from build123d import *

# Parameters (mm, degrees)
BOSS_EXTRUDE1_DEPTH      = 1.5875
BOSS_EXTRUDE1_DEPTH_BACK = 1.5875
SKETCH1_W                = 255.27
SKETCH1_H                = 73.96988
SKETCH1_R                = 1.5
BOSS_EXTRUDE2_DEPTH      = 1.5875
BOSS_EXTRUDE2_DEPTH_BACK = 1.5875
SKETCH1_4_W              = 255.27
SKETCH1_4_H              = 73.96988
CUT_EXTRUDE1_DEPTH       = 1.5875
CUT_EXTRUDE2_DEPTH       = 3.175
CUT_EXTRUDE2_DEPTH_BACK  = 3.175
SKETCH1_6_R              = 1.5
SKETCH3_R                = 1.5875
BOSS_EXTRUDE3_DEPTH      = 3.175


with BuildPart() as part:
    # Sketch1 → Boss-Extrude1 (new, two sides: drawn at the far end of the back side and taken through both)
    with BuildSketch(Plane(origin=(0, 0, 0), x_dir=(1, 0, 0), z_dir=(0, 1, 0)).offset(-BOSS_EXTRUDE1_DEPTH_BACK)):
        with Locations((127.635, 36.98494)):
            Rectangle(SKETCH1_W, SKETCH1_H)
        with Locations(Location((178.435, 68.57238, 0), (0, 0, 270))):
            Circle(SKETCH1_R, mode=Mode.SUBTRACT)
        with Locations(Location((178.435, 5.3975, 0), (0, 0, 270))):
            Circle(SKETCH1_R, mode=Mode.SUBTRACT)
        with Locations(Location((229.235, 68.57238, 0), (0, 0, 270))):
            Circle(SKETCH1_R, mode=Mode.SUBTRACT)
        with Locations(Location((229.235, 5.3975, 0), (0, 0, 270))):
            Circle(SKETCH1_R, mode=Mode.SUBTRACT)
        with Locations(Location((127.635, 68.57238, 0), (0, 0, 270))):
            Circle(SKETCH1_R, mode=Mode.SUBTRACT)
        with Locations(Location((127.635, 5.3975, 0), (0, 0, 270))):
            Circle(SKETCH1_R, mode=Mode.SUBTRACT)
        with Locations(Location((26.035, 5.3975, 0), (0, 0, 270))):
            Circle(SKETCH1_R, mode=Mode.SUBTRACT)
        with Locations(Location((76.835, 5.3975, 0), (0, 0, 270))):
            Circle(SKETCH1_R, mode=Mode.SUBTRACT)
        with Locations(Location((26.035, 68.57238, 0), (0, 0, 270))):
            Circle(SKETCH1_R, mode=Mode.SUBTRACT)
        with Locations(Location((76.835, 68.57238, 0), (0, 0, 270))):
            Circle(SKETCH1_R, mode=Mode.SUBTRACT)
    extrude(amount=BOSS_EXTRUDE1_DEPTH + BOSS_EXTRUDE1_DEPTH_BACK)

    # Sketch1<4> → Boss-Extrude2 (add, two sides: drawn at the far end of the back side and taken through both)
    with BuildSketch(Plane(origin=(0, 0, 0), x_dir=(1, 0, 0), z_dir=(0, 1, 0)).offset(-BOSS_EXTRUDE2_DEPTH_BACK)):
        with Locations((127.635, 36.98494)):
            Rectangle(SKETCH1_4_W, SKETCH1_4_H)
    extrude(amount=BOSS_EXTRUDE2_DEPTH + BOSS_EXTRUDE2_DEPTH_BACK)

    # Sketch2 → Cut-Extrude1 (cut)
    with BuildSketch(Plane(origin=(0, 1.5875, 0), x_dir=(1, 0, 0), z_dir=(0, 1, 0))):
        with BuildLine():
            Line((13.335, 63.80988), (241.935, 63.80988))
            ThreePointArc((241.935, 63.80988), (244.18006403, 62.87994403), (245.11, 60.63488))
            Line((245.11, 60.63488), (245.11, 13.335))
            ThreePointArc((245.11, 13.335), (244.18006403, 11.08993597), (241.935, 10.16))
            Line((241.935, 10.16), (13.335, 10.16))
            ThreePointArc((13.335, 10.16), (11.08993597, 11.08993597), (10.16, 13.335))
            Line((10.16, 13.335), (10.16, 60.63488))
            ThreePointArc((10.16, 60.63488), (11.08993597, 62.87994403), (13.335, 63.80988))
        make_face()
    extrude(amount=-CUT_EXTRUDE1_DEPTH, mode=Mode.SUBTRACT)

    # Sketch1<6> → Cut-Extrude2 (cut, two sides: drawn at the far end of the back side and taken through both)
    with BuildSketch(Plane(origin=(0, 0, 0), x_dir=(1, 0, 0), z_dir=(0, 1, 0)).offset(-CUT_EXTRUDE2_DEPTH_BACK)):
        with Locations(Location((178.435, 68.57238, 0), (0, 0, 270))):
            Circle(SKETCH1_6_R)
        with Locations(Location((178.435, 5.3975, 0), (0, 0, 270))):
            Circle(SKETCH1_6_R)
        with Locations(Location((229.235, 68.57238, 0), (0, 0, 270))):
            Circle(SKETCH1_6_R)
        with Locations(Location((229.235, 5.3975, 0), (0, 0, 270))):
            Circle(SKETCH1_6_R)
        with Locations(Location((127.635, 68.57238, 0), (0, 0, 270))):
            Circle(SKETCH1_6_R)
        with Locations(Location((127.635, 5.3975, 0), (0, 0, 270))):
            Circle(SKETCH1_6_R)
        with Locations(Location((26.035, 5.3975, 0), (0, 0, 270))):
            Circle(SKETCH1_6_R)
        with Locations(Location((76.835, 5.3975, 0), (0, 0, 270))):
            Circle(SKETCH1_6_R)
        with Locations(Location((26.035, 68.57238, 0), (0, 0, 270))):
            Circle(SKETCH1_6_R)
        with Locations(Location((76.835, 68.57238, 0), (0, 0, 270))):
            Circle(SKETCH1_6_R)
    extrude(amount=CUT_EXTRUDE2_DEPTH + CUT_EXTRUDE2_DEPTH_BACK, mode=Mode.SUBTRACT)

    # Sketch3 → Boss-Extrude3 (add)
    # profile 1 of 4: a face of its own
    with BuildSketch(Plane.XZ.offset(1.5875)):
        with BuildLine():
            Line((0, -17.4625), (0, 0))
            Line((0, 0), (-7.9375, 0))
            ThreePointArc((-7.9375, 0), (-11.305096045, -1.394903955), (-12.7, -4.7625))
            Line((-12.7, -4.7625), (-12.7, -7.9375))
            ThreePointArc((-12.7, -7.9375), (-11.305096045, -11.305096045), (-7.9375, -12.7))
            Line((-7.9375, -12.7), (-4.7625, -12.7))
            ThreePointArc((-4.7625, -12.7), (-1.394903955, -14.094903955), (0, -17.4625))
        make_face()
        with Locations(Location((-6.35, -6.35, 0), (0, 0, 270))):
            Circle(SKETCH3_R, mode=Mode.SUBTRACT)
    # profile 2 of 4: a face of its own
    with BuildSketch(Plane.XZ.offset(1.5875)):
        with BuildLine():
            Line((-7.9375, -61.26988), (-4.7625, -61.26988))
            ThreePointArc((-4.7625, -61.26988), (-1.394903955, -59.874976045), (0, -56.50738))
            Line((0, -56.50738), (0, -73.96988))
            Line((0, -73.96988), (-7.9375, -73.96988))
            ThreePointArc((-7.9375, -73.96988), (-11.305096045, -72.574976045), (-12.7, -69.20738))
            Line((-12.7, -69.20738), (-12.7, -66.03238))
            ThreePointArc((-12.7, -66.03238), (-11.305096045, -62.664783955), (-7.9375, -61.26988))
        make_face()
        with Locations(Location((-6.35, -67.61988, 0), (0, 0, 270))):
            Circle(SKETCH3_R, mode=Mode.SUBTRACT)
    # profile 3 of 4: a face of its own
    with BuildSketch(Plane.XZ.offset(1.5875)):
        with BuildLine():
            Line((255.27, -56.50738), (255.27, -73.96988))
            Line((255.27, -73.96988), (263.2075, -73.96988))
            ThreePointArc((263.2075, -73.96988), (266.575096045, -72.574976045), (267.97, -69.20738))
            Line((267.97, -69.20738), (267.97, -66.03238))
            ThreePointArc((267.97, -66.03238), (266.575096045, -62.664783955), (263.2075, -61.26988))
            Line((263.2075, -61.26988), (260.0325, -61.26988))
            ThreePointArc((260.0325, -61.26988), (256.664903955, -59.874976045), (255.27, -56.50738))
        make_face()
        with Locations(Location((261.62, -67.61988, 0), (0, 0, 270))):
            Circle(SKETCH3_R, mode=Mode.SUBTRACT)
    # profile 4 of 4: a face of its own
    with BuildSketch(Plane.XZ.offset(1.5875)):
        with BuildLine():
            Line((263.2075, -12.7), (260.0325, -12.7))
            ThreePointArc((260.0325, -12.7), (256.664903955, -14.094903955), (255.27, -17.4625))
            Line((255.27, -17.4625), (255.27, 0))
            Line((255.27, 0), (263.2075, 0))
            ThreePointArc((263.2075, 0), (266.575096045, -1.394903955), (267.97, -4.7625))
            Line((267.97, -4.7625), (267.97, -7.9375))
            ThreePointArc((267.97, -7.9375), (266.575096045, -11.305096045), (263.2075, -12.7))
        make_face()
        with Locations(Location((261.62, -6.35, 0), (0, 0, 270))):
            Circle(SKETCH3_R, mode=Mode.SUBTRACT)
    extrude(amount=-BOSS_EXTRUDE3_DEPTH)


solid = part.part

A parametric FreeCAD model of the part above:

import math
import FreeCAD as App
import Part
import Sketcher
from FreeCAD import Vector
Q = App.Units.Quantity

doc = App.newDocument("Part")
params = doc.addObject("Spreadsheet::Sheet", "Params")
for row, (alias, value) in enumerate([
    ("sketch1_width", "10.05 in"),
    ("pad1_length", "0.0625 in"),
    ("pad1_length2", "0.0625 in"),
    ("sketch2_width", "10.05 in"),
    ("pad2_length", "0.0625 in"),
    ("pad2_length2", "0.0625 in"),
    ("sketch3_width", "9 in"),
    ("sketch3_radius", "0.125 in"),
    ("pocket1_length", "0.0625 in"),
    ("sketch5_diameter", "0.125 in"),
    ("sketch5_radius", "0.1875 in"),
    ("pad3_length", "0.125 in"),
], start=1):
    params.set(f"A{row}", alias)
    params.set(f"B{row}", "=" + value)
    params.setAlias(f"B{row}", alias)

body = doc.addObject("PartDesign::Body", "Body")

# Sketch on XZ plane
sketch1 = doc.addObject("Sketcher::SketchObject", "Sketch")
body.addObject(sketch1)
sketch1.AttachmentSupport = (doc.XZ_Plane, [""])
sketch1.MapMode = "FlatFace"
sketch1.addGeometry([
    Part.LineSegment(Vector(0, -73.96988, 0), Vector(0, 0, 0)),  # 0
    Part.LineSegment(Vector(0, 0, 0), Vector(255.27, 0, 0)),  # 1
    Part.LineSegment(Vector(255.27, 0, 0), Vector(255.27, -73.96988, 0)),  # 2
    Part.LineSegment(Vector(255.27, -73.96988, 0), Vector(0, -73.96988, 0)),  # 3
    Part.Circle(Vector(26.035, -5.3975, 0), Vector(0, 0, 1), 1.5),  # 4
    Part.Circle(Vector(76.835, -5.3975, 0), Vector(0, 0, 1), 1.5),  # 5
    Part.Circle(Vector(127.635, -5.3975, 0), Vector(0, 0, 1), 1.5),  # 6
    Part.Circle(Vector(178.435, -5.3975, 0), Vector(0, 0, 1), 1.5),  # 7
    Part.Circle(Vector(229.235, -5.3975, 0), Vector(0, 0, 1), 1.5),  # 8
    Part.Circle(Vector(26.035, -68.57238, 0), Vector(0, 0, 1), 1.5),  # 9
    Part.Circle(Vector(76.835, -68.57238, 0), Vector(0, 0, 1), 1.5),  # 10
    Part.Circle(Vector(127.635, -68.57238, 0), Vector(0, 0, 1), 1.5),  # 11
    Part.Circle(Vector(178.435, -68.57238, 0), Vector(0, 0, 1), 1.5),  # 12
    Part.Circle(Vector(229.235, -68.57238, 0), Vector(0, 0, 1), 1.5),  # 13
], False)
sketch1.addConstraint([
    Sketcher.Constraint("Coincident", 0, 2, 1, 1),
    Sketcher.Constraint("Coincident", 1, 2, 2, 1),
    Sketcher.Constraint("Coincident", 2, 2, 3, 1),
    Sketcher.Constraint("Coincident", 3, 2, 0, 1),
    Sketcher.Constraint("Vertical", 0),
    Sketcher.Constraint("Horizontal", 1),
    Sketcher.Constraint("Vertical", 2),
    Sketcher.Constraint("Horizontal", 3),
    Sketcher.Constraint("Coincident", 0, 2, -1, 1),
    Sketcher.Constraint("Equal", 4, 5),
    Sketcher.Constraint("Equal", 5, 6),
    Sketcher.Constraint("Equal", 6, 7),
    Sketcher.Constraint("Equal", 7, 8),
    Sketcher.Constraint("Equal", 8, 9),
    Sketcher.Constraint("Equal", 9, 10),
    Sketcher.Constraint("Equal", 10, 11),
    Sketcher.Constraint("Equal", 11, 12),
    Sketcher.Constraint("Equal", 12, 13),
    Sketcher.Constraint("Horizontal", 4, 3, 5, 3),
    Sketcher.Constraint("Horizontal", 5, 3, 6, 3),
    Sketcher.Constraint("Horizontal", 6, 3, 7, 3),
    Sketcher.Constraint("Horizontal", 7, 3, 8, 3),
    Sketcher.Constraint("Horizontal", 9, 3, 10, 3),
    Sketcher.Constraint("Horizontal", 10, 3, 11, 3),
    Sketcher.Constraint("Horizontal", 11, 3, 12, 3),
    Sketcher.Constraint("Horizontal", 12, 3, 13, 3),
    Sketcher.Constraint("Vertical", 4, 3, 9, 3),
    Sketcher.Constraint("Vertical", 5, 3, 10, 3),
    Sketcher.Constraint("Vertical", 6, 3, 11, 3),
    Sketcher.Constraint("Vertical", 7, 3, 12, 3),
    Sketcher.Constraint("Vertical", 8, 3, 13, 3),
    Sketcher.Constraint("DistanceX", 4, 3, 5, 3, Q("2 in")),
    Sketcher.Constraint("DistanceX", 5, 3, 6, 3, Q("2 in")),
    Sketcher.Constraint("DistanceX", 6, 3, 7, 3, Q("2 in")),
    Sketcher.Constraint("DistanceX", 7, 3, 8, 3, Q("2 in")),
    Sketcher.Constraint("DistanceX", 1, 1, 1, 2, Q("10.05 in")),
    Sketcher.Constraint("Diameter", 4, Q("3 mm")),
    Sketcher.Constraint("DistanceY", 0, 1, 0, 2, Q("2.9122 in")),
    Sketcher.Constraint("DistanceX", -1, 1, 4, 3, Q("1.025 in")),
    Sketcher.Constraint("DistanceY", 4, 3, -1, 1, Q("0.2125 in")),
    Sketcher.Constraint("DistanceY", 9, 3, -1, 1, Q("2.6997 in")),
])
sketch1.setExpression("Constraints[35]", "Params.sketch1_width")
pad1 = doc.addObject("PartDesign::Pad", "Pad")
body.addObject(pad1)
pad1.Profile = sketch1
pad1.Type = "TwoLengths"
pad1.setExpression("Length", "Params.pad1_length")
pad1.setExpression("Length2", "Params.pad1_length2")
pad1.Reversed = True

# Sketch on XZ plane
sketch2 = doc.addObject("Sketcher::SketchObject", "Sketch001")
body.addObject(sketch2)
sketch2.AttachmentSupport = (doc.XZ_Plane, [""])
sketch2.MapMode = "FlatFace"
sketch2.addGeometry([
    Part.LineSegment(Vector(0, -73.96988, 0), Vector(0, 0, 0)),
    Part.LineSegment(Vector(0, 0, 0), Vector(255.27, 0, 0)),
    Part.LineSegment(Vector(255.27, 0, 0), Vector(255.27, -73.96988, 0)),
    Part.LineSegment(Vector(255.27, -73.96988, 0), Vector(0, -73.96988, 0)),
], False)
sketch2.addConstraint([
    Sketcher.Constraint("Coincident", 0, 2, 1, 1),
    Sketcher.Constraint("Coincident", 1, 2, 2, 1),
    Sketcher.Constraint("Coincident", 2, 2, 3, 1),
    Sketcher.Constraint("Coincident", 3, 2, 0, 1),
    Sketcher.Constraint("Vertical", 0),
    Sketcher.Constraint("Horizontal", 1),
    Sketcher.Constraint("Vertical", 2),
    Sketcher.Constraint("Horizontal", 3),
    Sketcher.Constraint("Coincident", 0, 2, -1, 1),
    Sketcher.Constraint("DistanceX", 1, 1, 1, 2, Q("10.05 in")),
    Sketcher.Constraint("DistanceY", 0, 1, 0, 2, Q("2.9122 in")),
])
sketch2.setExpression("Constraints[9]", "Params.sketch2_width")
pad2 = doc.addObject("PartDesign::Pad", "Pad001")
body.addObject(pad2)
pad2.Profile = sketch2
pad2.Type = "TwoLengths"
pad2.setExpression("Length", "Params.pad2_length")
pad2.setExpression("Length2", "Params.pad2_length2")
pad2.Reversed = True

# Sketch on XZ plane
sketch3 = doc.addObject("Sketcher::SketchObject", "Sketch002")
body.addObject(sketch3)
sketch3.AttachmentSupport = (doc.XZ_Plane, [""])
sketch3.MapMode = "FlatFace"
sketch3.AttachmentOffset = App.Placement(Vector(0, 0, -0.0625 * 25.4), App.Rotation())
sketch3.addGeometry([
    Part.LineSegment(Vector(241.935, -63.80988, 0), Vector(13.335, -63.80988, 0)),  # 0
    Part.ArcOfCircle(Part.Circle(Vector(13.335, -60.63488, 0), Vector(0, 0, 1), 3.175), math.radians(-180), math.radians(-90)),  # 1
    Part.LineSegment(Vector(10.16, -60.63488, 0), Vector(10.16, -13.335, 0)),  # 2
    Part.ArcOfCircle(Part.Circle(Vector(13.335, -13.335, 0), Vector(0, 0, 1), 3.175), math.radians(90), math.radians(180)),  # 3
    Part.LineSegment(Vector(13.335, -10.16, 0), Vector(241.935, -10.16, 0)),  # 4
    Part.ArcOfCircle(Part.Circle(Vector(241.935, -13.335, 0), Vector(0, 0, 1), 3.175), math.radians(0), math.radians(90)),  # 5
    Part.LineSegment(Vector(245.11, -13.335, 0), Vector(245.11, -60.63488, 0)),  # 6
    Part.ArcOfCircle(Part.Circle(Vector(241.935, -60.63488, 0), Vector(0, 0, 1), 3.175), math.radians(-90), math.radians(0)),  # 7
], False)
sketch3.addConstraint([
    Sketcher.Constraint("Tangent", 0, 2, 1, 2),
    Sketcher.Constraint("Tangent", 1, 1, 2, 1),
    Sketcher.Constraint("Tangent", 2, 2, 3, 2),
    Sketcher.Constraint("Tangent", 3, 1, 4, 1),
    Sketcher.Constraint("Tangent", 4, 2, 5, 2),
    Sketcher.Constraint("Tangent", 5, 1, 6, 1),
    Sketcher.Constraint("Tangent", 6, 2, 7, 2),
    Sketcher.Constraint("Tangent", 7, 1, 0, 1),
    Sketcher.Constraint("Horizontal", 0),
    Sketcher.Constraint("Vertical", 2),
    Sketcher.Constraint("Horizontal", 4),
    Sketcher.Constraint("Vertical", 6),
    Sketcher.Constraint("Equal", 1, 3),
    Sketcher.Constraint("Equal", 3, 5),
    Sketcher.Constraint("Equal", 5, 7),
    Sketcher.Constraint("DistanceX", 0, 2, 0, 1, Q("9 in")),
    Sketcher.Constraint("Radius", 1, Q("0.125 in")),
    Sketcher.Constraint("DistanceX", -1, 1, 1, 1, Q("0.4 in")),
    Sketcher.Constraint("DistanceY", 3, 1, -1, 1, Q("0.4 in")),
    Sketcher.Constraint("DistanceY", 2, 1, 2, 2, Q("1.8622 in")),
])
sketch3.setExpression("Constraints[15]", "Params.sketch3_width")
sketch3.setExpression("Constraints[16]", "Params.sketch3_radius")
pocket1 = doc.addObject("PartDesign::Pocket", "Pocket")
body.addObject(pocket1)
pocket1.Profile = sketch3
pocket1.setExpression("Length", "Params.pocket1_length")
pocket1.Reversed = True

# Sketch on XZ plane
sketch4 = doc.addObject("Sketcher::SketchObject", "Sketch003")
body.addObject(sketch4)
sketch4.AttachmentSupport = (doc.XZ_Plane, [""])
sketch4.MapMode = "FlatFace"
sketch4.addGeometry([
    Part.Circle(Vector(178.435, -68.57238, 0), Vector(0, 0, 1), 1.5),  # 0
    Part.Circle(Vector(178.435, -5.3975, 0), Vector(0, 0, 1), 1.5),  # 1
    Part.Circle(Vector(229.235, -68.57238, 0), Vector(0, 0, 1), 1.5),  # 2
    Part.Circle(Vector(229.235, -5.3975, 0), Vector(0, 0, 1), 1.5),  # 3
    Part.Circle(Vector(127.635, -68.57238, 0), Vector(0, 0, 1), 1.5),  # 4
    Part.Circle(Vector(127.635, -5.3975, 0), Vector(0, 0, 1), 1.5),  # 5
    Part.Circle(Vector(26.035, -5.3975, 0), Vector(0, 0, 1), 1.5),  # 6
    Part.Circle(Vector(76.835, -5.3975, 0), Vector(0, 0, 1), 1.5),  # 7
    Part.Circle(Vector(26.035, -68.57238, 0), Vector(0, 0, 1), 1.5),  # 8
    Part.Circle(Vector(76.835, -68.57238, 0), Vector(0, 0, 1), 1.5),  # 9
], False)
sketch4.addConstraint([
    Sketcher.Constraint("Equal", 0, 1),
    Sketcher.Constraint("Equal", 1, 2),
    Sketcher.Constraint("Equal", 2, 3),
    Sketcher.Constraint("Equal", 3, 4),
    Sketcher.Constraint("Equal", 4, 5),
    Sketcher.Constraint("Equal", 5, 6),
    Sketcher.Constraint("Equal", 6, 7),
    Sketcher.Constraint("Equal", 7, 8),
    Sketcher.Constraint("Equal", 8, 9),
    Sketcher.Constraint("Horizontal", 0, 3, 2, 3),
    Sketcher.Constraint("Horizontal", 1, 3, 3, 3),
    Sketcher.Constraint("Horizontal", 2, 3, 4, 3),
    Sketcher.Constraint("Horizontal", 3, 3, 5, 3),
    Sketcher.Constraint("Horizontal", 5, 3, 6, 3),
    Sketcher.Constraint("Horizontal", 6, 3, 7, 3),
    Sketcher.Constraint("Horizontal", 4, 3, 8, 3),
    Sketcher.Constraint("Horizontal", 8, 3, 9, 3),
    Sketcher.Constraint("Vertical", 0, 3, 1, 3),
    Sketcher.Constraint("Vertical", 2, 3, 3, 3),
    Sketcher.Constraint("Vertical", 4, 3, 5, 3),
    Sketcher.Constraint("Vertical", 6, 3, 8, 3),
    Sketcher.Constraint("Vertical", 7, 3, 9, 3),
    Sketcher.Constraint("DistanceX", 0, 3, 2, 3, Q("2 in")),
    Sketcher.Constraint("DistanceX", 4, 3, 0, 3, Q("2 in")),
    Sketcher.Constraint("DistanceX", 6, 3, 5, 3, Q("4 in")),
    Sketcher.Constraint("DistanceX", 6, 3, 7, 3, Q("2 in")),
    Sketcher.Constraint("Diameter", 0, Q("3 mm")),
    Sketcher.Constraint("DistanceX", -1, 1, 0, 3, Q("7.025 in")),
    Sketcher.Constraint("DistanceY", 0, 3, -1, 1, Q("2.6997 in")),
    Sketcher.Constraint("DistanceY", 1, 3, -1, 1, Q("0.2125 in")),
])
pocket2 = doc.addObject("PartDesign::Pocket", "Pocket001")
body.addObject(pocket2)
pocket2.Profile = sketch4
pocket2.Type = "ThroughAll"
pocket2.Midplane = True

# Sketch on XZ plane
sketch5 = doc.addObject("Sketcher::SketchObject", "Sketch004")
body.addObject(sketch5)
sketch5.AttachmentSupport = (doc.XZ_Plane, [""])
sketch5.MapMode = "FlatFace"
sketch5.AttachmentOffset = App.Placement(Vector(0, 0, 0.0625 * 25.4), App.Rotation())
sketch5.addGeometry([
    Part.LineSegment(Vector(0, -17.4625, 0), Vector(0, 0, 0)),  # 0
    Part.LineSegment(Vector(0, 0, 0), Vector(-7.9375, 0, 0)),  # 1
    Part.ArcOfCircle(Part.Circle(Vector(-7.9375, -4.7625, 0), Vector(0, 0, 1), 4.7625), math.radians(90), math.radians(180)),  # 2
    Part.LineSegment(Vector(-12.7, -4.7625, 0), Vector(-12.7, -7.9375, 0)),  # 3
    Part.ArcOfCircle(Part.Circle(Vector(-7.9375, -7.9375, 0), Vector(0, 0, 1), 4.7625), math.radians(-180), math.radians(-90)),  # 4
    Part.LineSegment(Vector(-7.9375, -12.7, 0), Vector(-4.7625, -12.7, 0)),  # 5
    Part.ArcOfCircle(Part.Circle(Vector(-4.7625, -17.4625, 0), Vector(0, 0, 1), 4.7625), math.radians(0), math.radians(90)),  # 6
    Part.Circle(Vector(-6.35, -6.35, 0), Vector(0, 0, 1), 1.5875),  # 7
    Part.LineSegment(Vector(-4.7625, -61.26988, 0), Vector(-7.9375, -61.26988, 0)),  # 8
    Part.ArcOfCircle(Part.Circle(Vector(-7.9375, -66.03238, 0), Vector(0, 0, 1), 4.7625), math.radians(90), math.radians(180)),  # 9
    Part.LineSegment(Vector(-12.7, -66.03238, 0), Vector(-12.7, -69.20738, 0)),  # 10
    Part.ArcOfCircle(Part.Circle(Vector(-7.9375, -69.20738, 0), Vector(0, 0, 1), 4.7625), math.radians(-180), math.radians(-90)),  # 11
    Part.LineSegment(Vector(-7.9375, -73.96988, 0), Vector(0, -73.96988, 0)),  # 12
    Part.LineSegment(Vector(0, -73.96988, 0), Vector(0, -56.50738, 0)),  # 13
    Part.ArcOfCircle(Part.Circle(Vector(-4.7625, -56.50738, 0), Vector(0, 0, 1), 4.7625), math.radians(-90), math.radians(0)),  # 14
    Part.Circle(Vector(-6.35, -67.61988, 0), Vector(0, 0, 1), 1.5875),  # 15
    Part.LineSegment(Vector(255.27, -56.50738, 0), Vector(255.27, -73.96988, 0)),  # 16
    Part.LineSegment(Vector(255.27, -73.96988, 0), Vector(263.2075, -73.96988, 0)),  # 17
    Part.ArcOfCircle(Part.Circle(Vector(263.2075, -69.20738, 0), Vector(0, 0, 1), 4.7625), math.radians(-90), math.radians(0)),  # 18
    Part.LineSegment(Vector(267.97, -69.20738, 0), Vector(267.97, -66.03238, 0)),  # 19
    Part.ArcOfCircle(Part.Circle(Vector(263.2075, -66.03238, 0), Vector(0, 0, 1), 4.7625), math.radians(0), math.radians(90)),  # 20
    Part.LineSegment(Vector(263.2075, -61.26988, 0), Vector(260.0325, -61.26988, 0)),  # 21
    Part.ArcOfCircle(Part.Circle(Vector(260.0325, -56.50738, 0), Vector(0, 0, 1), 4.7625), math.radians(-180), math.radians(-90)),  # 22
    Part.Circle(Vector(261.62, -67.61988, 0), Vector(0, 0, 1), 1.5875),  # 23
    Part.LineSegment(Vector(260.0325, -12.7, 0), Vector(263.2075, -12.7, 0)),  # 24
    Part.ArcOfCircle(Part.Circle(Vector(263.2075, -7.9375, 0), Vector(0, 0, 1), 4.7625), math.radians(-90), math.radians(0)),  # 25
    Part.LineSegment(Vector(267.97, -7.9375, 0), Vector(267.97, -4.7625, 0)),  # 26
    Part.ArcOfCircle(Part.Circle(Vector(263.2075, -4.7625, 0), Vector(0, 0, 1), 4.7625), math.radians(0), math.radians(90)),  # 27
    Part.LineSegment(Vector(263.2075, 0, 0), Vector(255.27, 0, 0)),  # 28
    Part.LineSegment(Vector(255.27, 0, 0), Vector(255.27, -17.4625, 0)),  # 29
    Part.ArcOfCircle(Part.Circle(Vector(260.0325, -17.4625, 0), Vector(0, 0, 1), 4.7625), math.radians(90), math.radians(180)),  # 30
    Part.Circle(Vector(261.62, -6.35, 0), Vector(0, 0, 1), 1.5875),  # 31
], False)
sketch5.addConstraint([
    Sketcher.Constraint("Coincident", 0, 2, 1, 1),
    Sketcher.Constraint("Tangent", 1, 2, 2, 1),
    Sketcher.Constraint("Tangent", 2, 2, 3, 1),
    Sketcher.Constraint("Tangent", 3, 2, 4, 1),
    Sketcher.Constraint("Tangent", 4, 2, 5, 1),
    Sketcher.Constraint("Tangent", 5, 2, 6, 2),
    Sketcher.Constraint("Tangent", 6, 1, 0, 1),
    Sketcher.Constraint("Tangent", 8, 2, 9, 1),
    Sketcher.Constraint("Tangent", 9, 2, 10, 1),
    Sketcher.Constraint("Tangent", 10, 2, 11, 1),
    Sketcher.Constraint("Tangent", 11, 2, 12, 1),
    Sketcher.Constraint("Coincident", 12, 2, 13, 1),
    Sketcher.Constraint("Tangent", 13, 2, 14, 2),
    Sketcher.Constraint("Tangent", 14, 1, 8, 1),
    Sketcher.Constraint("Coincident", 16, 2, 17, 1),
    Sketcher.Constraint("Tangent", 17, 2, 18, 1),
    Sketcher.Constraint("Tangent", 18, 2, 19, 1),
    Sketcher.Constraint("Tangent", 19, 2, 20, 1),
    Sketcher.Constraint("Tangent", 20, 2, 21, 1),
    Sketcher.Constraint("Tangent", 21, 2, 22, 2),
    Sketcher.Constraint("Tangent", 22, 1, 16, 1),
    Sketcher.Constraint("Tangent", 24, 2, 25, 1),
    Sketcher.Constraint("Tangent", 25, 2, 26, 1),
    Sketcher.Constraint("Tangent", 26, 2, 27, 1),
    Sketcher.Constraint("Tangent", 27, 2, 28, 1),
    Sketcher.Constraint("Coincident", 28, 2, 29, 1),
    Sketcher.Constraint("Tangent", 29, 2, 30, 2),
    Sketcher.Constraint("Tangent", 30, 1, 24, 1),
    Sketcher.Constraint("Vertical", 0),
    Sketcher.Constraint("Horizontal", 1),
    Sketcher.Constraint("Vertical", 3),
    Sketcher.Constraint("Horizontal", 5),
    Sketcher.Constraint("Horizontal", 8),
    Sketcher.Constraint("Vertical", 10),
    Sketcher.Constraint("Horizontal", 12),
    Sketcher.Constraint("Vertical", 13),
    Sketcher.Constraint("Vertical", 16),
    Sketcher.Constraint("Horizontal", 17),
    Sketcher.Constraint("Vertical", 19),
    Sketcher.Constraint("Horizontal", 21),
    Sketcher.Constraint("Horizontal", 24),
    Sketcher.Constraint("Vertical", 26),
    Sketcher.Constraint("Horizontal", 28),
    Sketcher.Constraint("Vertical", 29),
    Sketcher.Constraint("Coincident", 0, 2, -1, 1),
    Sketcher.Constraint("Equal", 2, 4),
    Sketcher.Constraint("Equal", 4, 6),
    Sketcher.Constraint("Equal", 6, 9),
    Sketcher.Constraint("Equal", 9, 11),
    Sketcher.Constraint("Equal", 11, 14),
    Sketcher.Constraint("Equal", 7, 15),
    Sketcher.Constraint("Equal", 14, 18),
    Sketcher.Constraint("Equal", 18, 20),
    Sketcher.Constraint("Equal", 20, 22),
    Sketcher.Constraint("Equal", 15, 23),
    Sketcher.Constraint("Equal", 22, 25),
    Sketcher.Constraint("Equal", 25, 27),
    Sketcher.Constraint("Equal", 27, 30),
    Sketcher.Constraint("Equal", 23, 31),
    Sketcher.Constraint("PointOnObject", 12, 2, -2),
    Sketcher.Constraint("PointOnObject", 27, 2, -1),
    Sketcher.Constraint("Horizontal", 11, 3, 18, 3),
    Sketcher.Constraint("Horizontal", 9, 3, 20, 3),
    Sketcher.Constraint("Horizontal", 15, 3, 23, 3),
    Sketcher.Constraint("Horizontal", 4, 3, 25, 3),
    Sketcher.Constraint("Horizontal", 7, 3, 31, 3),
    Sketcher.Constraint("Vertical", 4, 3, 9, 3),
    Sketcher.Constraint("Vertical", 7, 3, 15, 3),
    Sketcher.Constraint("Vertical", 20, 3, 25, 3),
    Sketcher.Constraint("Vertical", 22, 3, 30, 3),
    Sketcher.Constraint("Vertical", 23, 3, 31, 3),
    Sketcher.Constraint("Equal", 12, 17),
    Sketcher.Constraint("Equal", 24, 3),
    Sketcher.Constraint("Equal", 3, 10),
    Sketcher.Constraint("Diameter", 7, Q("0.125 in")),
    Sketcher.Constraint("Radius", 2, Q("0.1875 in")),
    Sketcher.Constraint("DistanceX", -1, 1, 23, 3, Q("10.3 in")),
    Sketcher.Constraint("DistanceX", 2, 2, -1, 1, Q("0.5 in")),
    Sketcher.Constraint("DistanceX", 7, 3, -1, 1, Q("0.25 in")),
    Sketcher.Constraint("DistanceY", 7, 3, -1, 1, Q("0.25 in")),
    Sketcher.Constraint("DistanceX", -1, 1, 16, 2, Q("10.05 in")),
    Sketcher.Constraint("DistanceY", 15, 3, 8, 2, Q("0.25 in")),
    Sketcher.Constraint("DistanceY", 9, 3, -1, 1, Q("2.5997 in")),
])
sketch5.setExpression("Constraints[74]", "Params.sketch5_diameter")
sketch5.setExpression("Constraints[75]", "Params.sketch5_radius")
pad3 = doc.addObject("PartDesign::Pad", "Pad002")
body.addObject(pad3)
pad3.Profile = sketch5
pad3.setExpression("Length", "Params.pad3_length")
pad3.Reversed = True

doc.recompute()
